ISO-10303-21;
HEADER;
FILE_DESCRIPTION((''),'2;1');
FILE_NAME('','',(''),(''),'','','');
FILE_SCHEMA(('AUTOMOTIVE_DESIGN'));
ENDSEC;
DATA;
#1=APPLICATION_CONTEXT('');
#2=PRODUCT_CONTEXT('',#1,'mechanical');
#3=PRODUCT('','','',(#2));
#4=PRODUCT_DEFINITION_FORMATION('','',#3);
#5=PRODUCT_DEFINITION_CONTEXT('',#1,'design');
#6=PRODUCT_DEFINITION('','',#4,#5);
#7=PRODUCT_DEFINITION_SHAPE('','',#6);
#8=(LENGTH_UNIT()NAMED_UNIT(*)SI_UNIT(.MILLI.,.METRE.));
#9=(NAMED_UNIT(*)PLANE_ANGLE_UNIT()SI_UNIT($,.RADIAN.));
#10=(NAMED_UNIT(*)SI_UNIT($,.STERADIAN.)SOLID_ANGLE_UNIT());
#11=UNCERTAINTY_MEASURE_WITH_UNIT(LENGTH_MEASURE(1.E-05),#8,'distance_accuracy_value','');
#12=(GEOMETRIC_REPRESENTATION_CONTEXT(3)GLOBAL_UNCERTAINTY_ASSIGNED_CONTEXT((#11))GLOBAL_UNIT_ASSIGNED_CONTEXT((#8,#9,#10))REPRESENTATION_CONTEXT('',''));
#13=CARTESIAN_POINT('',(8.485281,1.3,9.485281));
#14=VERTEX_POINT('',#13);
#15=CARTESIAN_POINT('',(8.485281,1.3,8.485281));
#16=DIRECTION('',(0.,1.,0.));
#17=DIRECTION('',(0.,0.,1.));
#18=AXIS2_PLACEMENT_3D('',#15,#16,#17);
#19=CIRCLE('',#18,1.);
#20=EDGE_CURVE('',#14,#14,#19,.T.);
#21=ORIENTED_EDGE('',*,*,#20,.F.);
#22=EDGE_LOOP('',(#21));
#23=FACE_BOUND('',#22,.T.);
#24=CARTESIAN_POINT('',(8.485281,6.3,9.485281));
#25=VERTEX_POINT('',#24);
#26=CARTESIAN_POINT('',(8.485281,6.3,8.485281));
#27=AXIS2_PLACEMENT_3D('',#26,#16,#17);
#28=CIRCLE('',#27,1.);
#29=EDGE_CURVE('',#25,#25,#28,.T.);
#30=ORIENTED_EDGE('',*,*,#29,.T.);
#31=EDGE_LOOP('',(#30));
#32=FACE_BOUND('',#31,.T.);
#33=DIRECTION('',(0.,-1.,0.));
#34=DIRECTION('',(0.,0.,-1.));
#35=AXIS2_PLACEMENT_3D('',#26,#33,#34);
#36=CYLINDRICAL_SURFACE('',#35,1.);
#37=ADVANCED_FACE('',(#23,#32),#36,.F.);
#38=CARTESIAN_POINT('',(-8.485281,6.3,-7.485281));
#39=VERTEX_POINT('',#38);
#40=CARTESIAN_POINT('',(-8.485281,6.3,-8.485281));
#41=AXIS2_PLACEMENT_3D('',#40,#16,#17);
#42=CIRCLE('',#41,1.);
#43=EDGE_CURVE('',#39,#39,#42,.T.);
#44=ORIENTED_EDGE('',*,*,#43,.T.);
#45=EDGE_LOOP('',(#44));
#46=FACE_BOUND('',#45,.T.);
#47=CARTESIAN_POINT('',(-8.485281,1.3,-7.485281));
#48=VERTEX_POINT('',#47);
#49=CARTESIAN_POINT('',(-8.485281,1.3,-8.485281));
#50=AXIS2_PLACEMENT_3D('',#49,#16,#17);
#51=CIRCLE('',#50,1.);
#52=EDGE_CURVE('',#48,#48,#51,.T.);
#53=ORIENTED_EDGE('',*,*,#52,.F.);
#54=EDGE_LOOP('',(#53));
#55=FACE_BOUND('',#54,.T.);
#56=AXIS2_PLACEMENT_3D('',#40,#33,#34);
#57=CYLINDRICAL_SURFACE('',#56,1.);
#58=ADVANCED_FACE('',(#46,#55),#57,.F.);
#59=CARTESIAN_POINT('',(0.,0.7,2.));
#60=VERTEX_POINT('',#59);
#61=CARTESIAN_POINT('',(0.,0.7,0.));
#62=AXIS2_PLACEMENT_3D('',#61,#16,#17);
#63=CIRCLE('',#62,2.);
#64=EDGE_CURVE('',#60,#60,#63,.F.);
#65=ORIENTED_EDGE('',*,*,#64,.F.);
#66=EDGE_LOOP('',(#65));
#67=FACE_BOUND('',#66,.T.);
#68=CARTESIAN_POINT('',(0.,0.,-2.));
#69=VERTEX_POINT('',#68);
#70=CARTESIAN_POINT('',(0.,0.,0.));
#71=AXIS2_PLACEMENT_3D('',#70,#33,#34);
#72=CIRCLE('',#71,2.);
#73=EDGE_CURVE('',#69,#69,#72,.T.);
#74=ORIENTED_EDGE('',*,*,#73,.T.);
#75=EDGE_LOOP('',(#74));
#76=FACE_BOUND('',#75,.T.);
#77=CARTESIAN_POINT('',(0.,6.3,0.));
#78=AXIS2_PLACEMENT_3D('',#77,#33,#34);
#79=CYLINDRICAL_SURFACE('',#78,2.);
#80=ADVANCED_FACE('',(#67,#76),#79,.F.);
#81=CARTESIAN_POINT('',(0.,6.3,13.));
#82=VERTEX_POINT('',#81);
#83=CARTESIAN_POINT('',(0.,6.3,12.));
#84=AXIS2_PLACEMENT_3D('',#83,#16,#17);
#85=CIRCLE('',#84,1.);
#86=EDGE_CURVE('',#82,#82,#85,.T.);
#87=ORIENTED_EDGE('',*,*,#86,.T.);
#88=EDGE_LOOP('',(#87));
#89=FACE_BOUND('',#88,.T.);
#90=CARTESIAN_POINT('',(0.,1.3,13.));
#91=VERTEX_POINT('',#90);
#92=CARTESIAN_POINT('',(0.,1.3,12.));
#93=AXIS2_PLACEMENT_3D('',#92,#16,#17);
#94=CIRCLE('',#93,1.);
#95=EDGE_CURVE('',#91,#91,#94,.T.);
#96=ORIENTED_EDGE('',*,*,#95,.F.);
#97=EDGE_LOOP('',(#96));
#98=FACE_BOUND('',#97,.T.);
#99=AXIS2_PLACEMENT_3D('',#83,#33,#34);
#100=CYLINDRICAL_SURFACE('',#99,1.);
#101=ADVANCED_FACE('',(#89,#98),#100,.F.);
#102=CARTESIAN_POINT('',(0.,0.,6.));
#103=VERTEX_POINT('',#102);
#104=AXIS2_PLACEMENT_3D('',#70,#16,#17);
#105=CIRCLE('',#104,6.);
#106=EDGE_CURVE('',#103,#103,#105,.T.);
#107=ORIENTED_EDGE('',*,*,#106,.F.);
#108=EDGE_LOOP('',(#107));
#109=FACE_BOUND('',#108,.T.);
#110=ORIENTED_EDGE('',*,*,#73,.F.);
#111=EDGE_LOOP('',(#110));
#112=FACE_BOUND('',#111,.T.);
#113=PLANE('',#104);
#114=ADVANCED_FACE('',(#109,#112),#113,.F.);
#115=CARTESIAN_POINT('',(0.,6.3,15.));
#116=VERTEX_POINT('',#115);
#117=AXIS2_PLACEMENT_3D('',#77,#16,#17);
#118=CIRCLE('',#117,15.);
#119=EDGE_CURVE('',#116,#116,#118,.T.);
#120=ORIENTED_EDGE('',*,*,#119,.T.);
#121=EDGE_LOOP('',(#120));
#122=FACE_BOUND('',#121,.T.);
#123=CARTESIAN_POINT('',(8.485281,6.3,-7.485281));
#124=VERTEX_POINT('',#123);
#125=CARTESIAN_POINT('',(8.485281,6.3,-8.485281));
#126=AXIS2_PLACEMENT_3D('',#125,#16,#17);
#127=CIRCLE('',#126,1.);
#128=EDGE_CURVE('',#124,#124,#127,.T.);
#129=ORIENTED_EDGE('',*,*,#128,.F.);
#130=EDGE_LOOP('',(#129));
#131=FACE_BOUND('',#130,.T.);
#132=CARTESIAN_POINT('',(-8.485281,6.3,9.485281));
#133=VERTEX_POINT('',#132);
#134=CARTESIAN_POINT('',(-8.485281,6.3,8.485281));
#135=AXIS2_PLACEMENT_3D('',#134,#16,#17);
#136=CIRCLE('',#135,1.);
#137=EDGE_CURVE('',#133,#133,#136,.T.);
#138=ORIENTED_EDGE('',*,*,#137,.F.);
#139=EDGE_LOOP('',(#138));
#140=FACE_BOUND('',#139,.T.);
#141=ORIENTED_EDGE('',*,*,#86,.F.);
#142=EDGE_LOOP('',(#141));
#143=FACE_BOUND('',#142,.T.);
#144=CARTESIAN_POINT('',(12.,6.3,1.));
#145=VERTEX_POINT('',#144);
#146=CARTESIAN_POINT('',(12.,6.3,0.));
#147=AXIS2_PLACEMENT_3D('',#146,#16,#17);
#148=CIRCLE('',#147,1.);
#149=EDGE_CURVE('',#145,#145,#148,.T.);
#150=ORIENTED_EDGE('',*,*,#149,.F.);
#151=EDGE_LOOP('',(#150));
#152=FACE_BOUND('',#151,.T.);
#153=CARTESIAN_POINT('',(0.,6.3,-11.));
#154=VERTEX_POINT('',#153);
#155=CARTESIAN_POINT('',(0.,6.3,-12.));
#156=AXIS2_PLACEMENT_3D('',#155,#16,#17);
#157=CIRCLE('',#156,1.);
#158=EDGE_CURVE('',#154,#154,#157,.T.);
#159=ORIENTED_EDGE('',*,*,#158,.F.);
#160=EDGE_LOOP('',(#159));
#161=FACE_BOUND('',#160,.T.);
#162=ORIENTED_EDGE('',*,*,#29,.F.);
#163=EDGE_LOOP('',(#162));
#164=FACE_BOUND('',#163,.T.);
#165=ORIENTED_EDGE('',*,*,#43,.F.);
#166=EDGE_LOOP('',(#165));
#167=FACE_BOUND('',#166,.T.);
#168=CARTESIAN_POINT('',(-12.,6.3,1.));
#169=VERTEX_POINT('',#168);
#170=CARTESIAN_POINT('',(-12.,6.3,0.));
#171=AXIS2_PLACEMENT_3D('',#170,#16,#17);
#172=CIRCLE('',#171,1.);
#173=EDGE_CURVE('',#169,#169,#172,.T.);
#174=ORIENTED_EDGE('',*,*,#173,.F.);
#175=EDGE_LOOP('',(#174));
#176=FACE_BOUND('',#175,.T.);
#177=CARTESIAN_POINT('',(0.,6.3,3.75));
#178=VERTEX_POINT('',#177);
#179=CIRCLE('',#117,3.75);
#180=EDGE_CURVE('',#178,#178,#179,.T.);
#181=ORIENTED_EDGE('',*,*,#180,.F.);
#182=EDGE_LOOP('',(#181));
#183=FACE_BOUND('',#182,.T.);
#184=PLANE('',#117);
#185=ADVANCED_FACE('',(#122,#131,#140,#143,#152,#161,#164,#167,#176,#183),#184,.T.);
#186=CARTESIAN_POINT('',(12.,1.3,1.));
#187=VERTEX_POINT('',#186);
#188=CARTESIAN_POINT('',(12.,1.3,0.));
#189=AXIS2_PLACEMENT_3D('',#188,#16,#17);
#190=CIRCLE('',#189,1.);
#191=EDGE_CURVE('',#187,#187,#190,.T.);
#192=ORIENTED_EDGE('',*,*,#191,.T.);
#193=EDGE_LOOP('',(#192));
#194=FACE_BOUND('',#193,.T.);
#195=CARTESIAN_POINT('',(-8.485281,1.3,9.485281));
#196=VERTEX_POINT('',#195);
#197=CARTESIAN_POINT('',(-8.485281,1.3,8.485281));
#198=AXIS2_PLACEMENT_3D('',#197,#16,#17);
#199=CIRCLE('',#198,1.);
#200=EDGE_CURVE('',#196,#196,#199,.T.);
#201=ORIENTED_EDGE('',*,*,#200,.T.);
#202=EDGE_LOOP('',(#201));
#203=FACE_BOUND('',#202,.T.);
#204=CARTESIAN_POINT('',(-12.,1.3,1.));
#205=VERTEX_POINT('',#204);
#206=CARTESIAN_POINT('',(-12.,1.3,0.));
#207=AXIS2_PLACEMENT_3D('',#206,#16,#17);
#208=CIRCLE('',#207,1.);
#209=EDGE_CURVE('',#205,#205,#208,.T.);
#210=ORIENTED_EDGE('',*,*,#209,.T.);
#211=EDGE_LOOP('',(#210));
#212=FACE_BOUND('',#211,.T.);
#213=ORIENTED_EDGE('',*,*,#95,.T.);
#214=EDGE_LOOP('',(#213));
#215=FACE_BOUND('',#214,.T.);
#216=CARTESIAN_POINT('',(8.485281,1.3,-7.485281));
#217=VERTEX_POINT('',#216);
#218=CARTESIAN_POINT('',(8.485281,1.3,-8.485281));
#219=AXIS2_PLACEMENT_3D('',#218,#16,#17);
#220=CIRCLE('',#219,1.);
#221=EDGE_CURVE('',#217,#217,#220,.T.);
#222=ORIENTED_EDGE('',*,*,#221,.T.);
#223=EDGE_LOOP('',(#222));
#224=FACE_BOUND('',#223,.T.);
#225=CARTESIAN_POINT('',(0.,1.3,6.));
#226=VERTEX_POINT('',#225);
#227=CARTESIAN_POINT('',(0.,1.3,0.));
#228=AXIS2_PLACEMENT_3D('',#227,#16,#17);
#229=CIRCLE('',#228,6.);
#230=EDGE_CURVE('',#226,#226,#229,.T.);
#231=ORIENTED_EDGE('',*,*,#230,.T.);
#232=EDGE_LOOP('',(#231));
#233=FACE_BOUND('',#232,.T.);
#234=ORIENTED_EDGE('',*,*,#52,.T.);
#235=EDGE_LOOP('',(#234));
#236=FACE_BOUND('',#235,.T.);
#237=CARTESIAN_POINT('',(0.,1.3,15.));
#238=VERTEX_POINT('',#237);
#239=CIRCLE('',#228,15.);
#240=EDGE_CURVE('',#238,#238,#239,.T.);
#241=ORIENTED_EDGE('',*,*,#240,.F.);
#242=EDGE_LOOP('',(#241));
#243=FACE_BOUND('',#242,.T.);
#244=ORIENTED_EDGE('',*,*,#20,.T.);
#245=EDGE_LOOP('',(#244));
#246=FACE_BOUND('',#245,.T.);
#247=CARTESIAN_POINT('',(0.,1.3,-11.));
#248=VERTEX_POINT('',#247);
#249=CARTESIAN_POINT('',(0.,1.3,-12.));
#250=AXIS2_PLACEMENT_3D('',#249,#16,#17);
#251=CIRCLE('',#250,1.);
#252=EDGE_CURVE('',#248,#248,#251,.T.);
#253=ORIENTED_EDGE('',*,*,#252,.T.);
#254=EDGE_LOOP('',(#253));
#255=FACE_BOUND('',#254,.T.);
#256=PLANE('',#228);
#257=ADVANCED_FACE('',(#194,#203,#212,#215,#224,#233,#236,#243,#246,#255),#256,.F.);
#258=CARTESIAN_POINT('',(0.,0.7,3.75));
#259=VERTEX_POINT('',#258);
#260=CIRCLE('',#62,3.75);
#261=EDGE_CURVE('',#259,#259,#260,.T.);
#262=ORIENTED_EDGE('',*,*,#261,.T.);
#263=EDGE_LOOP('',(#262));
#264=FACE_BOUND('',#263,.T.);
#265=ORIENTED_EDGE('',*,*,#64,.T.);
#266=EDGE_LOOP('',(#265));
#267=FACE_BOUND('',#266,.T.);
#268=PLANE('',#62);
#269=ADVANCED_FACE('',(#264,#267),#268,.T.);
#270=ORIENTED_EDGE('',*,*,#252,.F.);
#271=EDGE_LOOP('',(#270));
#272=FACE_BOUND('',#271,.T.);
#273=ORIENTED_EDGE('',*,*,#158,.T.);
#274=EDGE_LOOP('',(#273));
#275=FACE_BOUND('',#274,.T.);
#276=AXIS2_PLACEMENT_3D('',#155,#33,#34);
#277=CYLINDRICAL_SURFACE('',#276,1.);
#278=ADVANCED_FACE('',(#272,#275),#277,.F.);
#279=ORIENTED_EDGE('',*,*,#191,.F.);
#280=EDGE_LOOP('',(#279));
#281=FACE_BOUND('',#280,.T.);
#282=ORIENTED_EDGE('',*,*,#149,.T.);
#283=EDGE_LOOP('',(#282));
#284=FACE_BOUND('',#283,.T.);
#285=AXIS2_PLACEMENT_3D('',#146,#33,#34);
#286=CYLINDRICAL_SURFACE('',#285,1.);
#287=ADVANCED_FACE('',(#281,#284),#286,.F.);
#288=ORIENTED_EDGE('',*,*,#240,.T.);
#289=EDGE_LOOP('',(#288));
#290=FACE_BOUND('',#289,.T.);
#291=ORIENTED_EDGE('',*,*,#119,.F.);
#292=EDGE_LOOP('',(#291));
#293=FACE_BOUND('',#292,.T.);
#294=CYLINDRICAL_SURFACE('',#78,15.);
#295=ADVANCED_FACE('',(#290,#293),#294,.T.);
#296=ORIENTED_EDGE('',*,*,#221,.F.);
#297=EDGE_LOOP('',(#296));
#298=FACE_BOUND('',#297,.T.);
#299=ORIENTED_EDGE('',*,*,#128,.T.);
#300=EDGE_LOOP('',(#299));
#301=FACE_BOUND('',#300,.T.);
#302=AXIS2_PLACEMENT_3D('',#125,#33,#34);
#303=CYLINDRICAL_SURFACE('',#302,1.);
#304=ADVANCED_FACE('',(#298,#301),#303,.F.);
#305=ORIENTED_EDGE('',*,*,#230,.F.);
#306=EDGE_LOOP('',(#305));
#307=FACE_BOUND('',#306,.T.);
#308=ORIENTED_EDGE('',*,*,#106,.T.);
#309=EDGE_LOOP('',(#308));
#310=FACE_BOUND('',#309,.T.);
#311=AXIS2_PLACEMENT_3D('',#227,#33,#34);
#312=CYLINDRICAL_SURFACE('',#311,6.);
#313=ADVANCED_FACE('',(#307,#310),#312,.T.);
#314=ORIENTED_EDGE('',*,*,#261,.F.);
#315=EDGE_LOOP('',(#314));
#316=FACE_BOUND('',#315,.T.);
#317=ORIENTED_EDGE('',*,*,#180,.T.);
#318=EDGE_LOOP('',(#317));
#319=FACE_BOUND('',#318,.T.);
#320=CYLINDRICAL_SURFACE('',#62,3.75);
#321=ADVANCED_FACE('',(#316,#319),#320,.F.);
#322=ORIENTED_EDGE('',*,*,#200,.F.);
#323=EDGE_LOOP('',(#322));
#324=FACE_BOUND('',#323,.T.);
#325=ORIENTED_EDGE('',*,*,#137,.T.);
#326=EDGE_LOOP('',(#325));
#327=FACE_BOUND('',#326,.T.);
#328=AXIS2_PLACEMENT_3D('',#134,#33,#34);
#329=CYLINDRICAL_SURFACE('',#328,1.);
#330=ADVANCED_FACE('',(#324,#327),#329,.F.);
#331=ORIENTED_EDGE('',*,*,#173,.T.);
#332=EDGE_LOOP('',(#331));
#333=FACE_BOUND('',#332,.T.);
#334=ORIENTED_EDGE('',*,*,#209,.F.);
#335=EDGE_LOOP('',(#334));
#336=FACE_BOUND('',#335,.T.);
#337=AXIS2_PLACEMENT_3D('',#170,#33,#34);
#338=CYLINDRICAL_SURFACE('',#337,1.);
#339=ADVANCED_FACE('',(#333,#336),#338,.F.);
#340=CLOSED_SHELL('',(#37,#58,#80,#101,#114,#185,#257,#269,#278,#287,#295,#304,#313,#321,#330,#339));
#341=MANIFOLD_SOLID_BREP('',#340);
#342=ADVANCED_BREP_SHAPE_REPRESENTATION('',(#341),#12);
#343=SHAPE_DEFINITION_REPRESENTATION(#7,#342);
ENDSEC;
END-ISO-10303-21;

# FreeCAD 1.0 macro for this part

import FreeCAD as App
import Part
import Sketcher

V = App.Vector
Q = App.Units.Quantity

doc = App.newDocument("Part")
body = doc.addObject("PartDesign::Body", "Body")

sketch1 = body.newObject("Sketcher::SketchObject", "Sketch")
sketch1.AttachmentSupport = (doc.getObject("XZ_Plane"), [""])
sketch1.MapMode = "FlatFace"
sketch1.addGeometry(Part.Circle(V(0, 0, 0), V(0, 0, 1), 6), False)
sketch1.addConstraint(Sketcher.Constraint("Coincident", 0, 3, -1, 1))
sketch1.addConstraint(Sketcher.Constraint("Diameter", 0, Q("12 mm")))
pad1 = body.newObject("PartDesign::Pad", "Pad")
pad1.Profile = sketch1
pad1.Length = 1.3
pad1.Reversed = True

sketch2 = body.newObject("Sketcher::SketchObject", "Sketch001")
sketch2.AttachmentSupport = (doc.getObject("XZ_Plane"), [""])
sketch2.MapMode = "FlatFace"
sketch2.AttachmentOffset = App.Placement(V(0, 0, -1.3), App.Rotation())
sketch2.addGeometry(Part.Circle(V(0, 0, 0), V(0, 0, 1), 15), False)
sketch2.addGeometry(Part.Circle(V(-8.485281, -8.485281, 0), V(0, 0, 1), 1), False)
sketch2.addGeometry(Part.Circle(V(0, -12, 0), V(0, 0, 1), 1), False)
sketch2.addGeometry(Part.Circle(V(-12, 0, 0), V(0, 0, 1), 1), False)
sketch2.addGeometry(Part.Circle(V(-8.485281, 8.485281, 0), V(0, 0, 1), 1), False)
sketch2.addGeometry(Part.Circle(V(8.485281, -8.485281, 0), V(0, 0, 1), 1), False)
sketch2.addGeometry(Part.Circle(V(12, 0, 0), V(0, 0, 1), 1), False)
sketch2.addGeometry(Part.Circle(V(0, 12, 0), V(0, 0, 1), 1), False)
sketch2.addGeometry(Part.Circle(V(8.485281, 8.485281, 0), V(0, 0, 1), 1), False)
sketch2.addConstraint(Sketcher.Constraint("Coincident", 0, 3, -1, 1))
sketch2.addConstraint(Sketcher.Constraint("Equal", 1, 2))
sketch2.addConstraint(Sketcher.Constraint("Equal", 2, 3))
sketch2.addConstraint(Sketcher.Constraint("Equal", 3, 4))
sketch2.addConstraint(Sketcher.Constraint("Equal", 4, 5))
sketch2.addConstraint(Sketcher.Constraint("Equal", 5, 6))
sketch2.addConstraint(Sketcher.Constraint("Equal", 6, 7))
sketch2.addConstraint(Sketcher.Constraint("Equal", 7, 8))
sketch2.addConstraint(Sketcher.Constraint("Symmetric", 4, 3, 5, 3, -1, 1))
sketch2.addConstraint(Sketcher.Constraint("Symmetric", 3, 3, 6, 3, -1, 1))
sketch2.addConstraint(Sketcher.Constraint("Symmetric", 2, 3, 7, 3, -1, 1))
sketch2.addConstraint(Sketcher.Constraint("Symmetric", 1, 3, 8, 3, -1, 1))
sketch2.addConstraint(Sketcher.Constraint("Symmetric", 1, 3, 5, 3, -2))
sketch2.addConstraint(Sketcher.Constraint("PointOnObject", 2, 3, -2))
sketch2.addConstraint(Sketcher.Constraint("PointOnObject", 3, 3, -1))
sketch2.addConstraint(Sketcher.Constraint("Diameter", 0, Q("30 mm")))
sketch2.addConstraint(Sketcher.Constraint("Diameter", 1, Q("2 mm")))
sketch2.addConstraint(Sketcher.Constraint("DistanceY", 2, 3, -1, 1, Q("12 mm")))
sketch2.addConstraint(Sketcher.Constraint("DistanceX", 3, 3, -1, 1, Q("12 mm")))
sketch2.addConstraint(Sketcher.Constraint("DistanceX", 1, 3, -1, 1, Q("8.485281 mm")))
sketch2.addConstraint(Sketcher.Constraint("DistanceY", 1, 3, -1, 1, Q("8.485281 mm")))
pad2 = body.newObject("PartDesign::Pad", "Pad001")
pad2.Profile = sketch2
pad2.Length = 5
pad2.Reversed = True

sketch3 = body.newObject("Sketcher::SketchObject", "Sketch002")
sketch3.AttachmentSupport = (doc.getObject("XZ_Plane"), [""])
sketch3.MapMode = "FlatFace"
sketch3.addGeometry(Part.Circle(V(0, 0, 0), V(0, 0, 1), 2), False)
sketch3.addConstraint(Sketcher.Constraint("Coincident", 0, 3, -1, 1))
sketch3.addConstraint(Sketcher.Constraint("Diameter", 0, Q("4 mm")))
pocket1 = body.newObject("PartDesign::Pocket", "Pocket")
pocket1.Profile = sketch3
pocket1.Type = "ThroughAll"

sketch4 = body.newObject("Sketcher::SketchObject", "Sketch003")
sketch4.AttachmentSupport = (doc.getObject("XZ_Plane"), [""])
sketch4.MapMode = "FlatFace"
sketch4.AttachmentOffset = App.Placement(V(0, 0, -6.3), App.Rotation())
sketch4.addGeometry(Part.Circle(V(0, 0, 0), V(0, 0, 1), 3.75), False)
sketch4.addConstraint(Sketcher.Constraint("Coincident", 0, 3, -1, 1))
sketch4.addConstraint(Sketcher.Constraint("Diameter", 0, Q("7.5 mm")))
pocket2 = body.newObject("PartDesign::Pocket", "Pocket001")
pocket2.Profile = sketch4
pocket2.Length = 5.6
pocket2.Reversed = True

doc.recompute()
